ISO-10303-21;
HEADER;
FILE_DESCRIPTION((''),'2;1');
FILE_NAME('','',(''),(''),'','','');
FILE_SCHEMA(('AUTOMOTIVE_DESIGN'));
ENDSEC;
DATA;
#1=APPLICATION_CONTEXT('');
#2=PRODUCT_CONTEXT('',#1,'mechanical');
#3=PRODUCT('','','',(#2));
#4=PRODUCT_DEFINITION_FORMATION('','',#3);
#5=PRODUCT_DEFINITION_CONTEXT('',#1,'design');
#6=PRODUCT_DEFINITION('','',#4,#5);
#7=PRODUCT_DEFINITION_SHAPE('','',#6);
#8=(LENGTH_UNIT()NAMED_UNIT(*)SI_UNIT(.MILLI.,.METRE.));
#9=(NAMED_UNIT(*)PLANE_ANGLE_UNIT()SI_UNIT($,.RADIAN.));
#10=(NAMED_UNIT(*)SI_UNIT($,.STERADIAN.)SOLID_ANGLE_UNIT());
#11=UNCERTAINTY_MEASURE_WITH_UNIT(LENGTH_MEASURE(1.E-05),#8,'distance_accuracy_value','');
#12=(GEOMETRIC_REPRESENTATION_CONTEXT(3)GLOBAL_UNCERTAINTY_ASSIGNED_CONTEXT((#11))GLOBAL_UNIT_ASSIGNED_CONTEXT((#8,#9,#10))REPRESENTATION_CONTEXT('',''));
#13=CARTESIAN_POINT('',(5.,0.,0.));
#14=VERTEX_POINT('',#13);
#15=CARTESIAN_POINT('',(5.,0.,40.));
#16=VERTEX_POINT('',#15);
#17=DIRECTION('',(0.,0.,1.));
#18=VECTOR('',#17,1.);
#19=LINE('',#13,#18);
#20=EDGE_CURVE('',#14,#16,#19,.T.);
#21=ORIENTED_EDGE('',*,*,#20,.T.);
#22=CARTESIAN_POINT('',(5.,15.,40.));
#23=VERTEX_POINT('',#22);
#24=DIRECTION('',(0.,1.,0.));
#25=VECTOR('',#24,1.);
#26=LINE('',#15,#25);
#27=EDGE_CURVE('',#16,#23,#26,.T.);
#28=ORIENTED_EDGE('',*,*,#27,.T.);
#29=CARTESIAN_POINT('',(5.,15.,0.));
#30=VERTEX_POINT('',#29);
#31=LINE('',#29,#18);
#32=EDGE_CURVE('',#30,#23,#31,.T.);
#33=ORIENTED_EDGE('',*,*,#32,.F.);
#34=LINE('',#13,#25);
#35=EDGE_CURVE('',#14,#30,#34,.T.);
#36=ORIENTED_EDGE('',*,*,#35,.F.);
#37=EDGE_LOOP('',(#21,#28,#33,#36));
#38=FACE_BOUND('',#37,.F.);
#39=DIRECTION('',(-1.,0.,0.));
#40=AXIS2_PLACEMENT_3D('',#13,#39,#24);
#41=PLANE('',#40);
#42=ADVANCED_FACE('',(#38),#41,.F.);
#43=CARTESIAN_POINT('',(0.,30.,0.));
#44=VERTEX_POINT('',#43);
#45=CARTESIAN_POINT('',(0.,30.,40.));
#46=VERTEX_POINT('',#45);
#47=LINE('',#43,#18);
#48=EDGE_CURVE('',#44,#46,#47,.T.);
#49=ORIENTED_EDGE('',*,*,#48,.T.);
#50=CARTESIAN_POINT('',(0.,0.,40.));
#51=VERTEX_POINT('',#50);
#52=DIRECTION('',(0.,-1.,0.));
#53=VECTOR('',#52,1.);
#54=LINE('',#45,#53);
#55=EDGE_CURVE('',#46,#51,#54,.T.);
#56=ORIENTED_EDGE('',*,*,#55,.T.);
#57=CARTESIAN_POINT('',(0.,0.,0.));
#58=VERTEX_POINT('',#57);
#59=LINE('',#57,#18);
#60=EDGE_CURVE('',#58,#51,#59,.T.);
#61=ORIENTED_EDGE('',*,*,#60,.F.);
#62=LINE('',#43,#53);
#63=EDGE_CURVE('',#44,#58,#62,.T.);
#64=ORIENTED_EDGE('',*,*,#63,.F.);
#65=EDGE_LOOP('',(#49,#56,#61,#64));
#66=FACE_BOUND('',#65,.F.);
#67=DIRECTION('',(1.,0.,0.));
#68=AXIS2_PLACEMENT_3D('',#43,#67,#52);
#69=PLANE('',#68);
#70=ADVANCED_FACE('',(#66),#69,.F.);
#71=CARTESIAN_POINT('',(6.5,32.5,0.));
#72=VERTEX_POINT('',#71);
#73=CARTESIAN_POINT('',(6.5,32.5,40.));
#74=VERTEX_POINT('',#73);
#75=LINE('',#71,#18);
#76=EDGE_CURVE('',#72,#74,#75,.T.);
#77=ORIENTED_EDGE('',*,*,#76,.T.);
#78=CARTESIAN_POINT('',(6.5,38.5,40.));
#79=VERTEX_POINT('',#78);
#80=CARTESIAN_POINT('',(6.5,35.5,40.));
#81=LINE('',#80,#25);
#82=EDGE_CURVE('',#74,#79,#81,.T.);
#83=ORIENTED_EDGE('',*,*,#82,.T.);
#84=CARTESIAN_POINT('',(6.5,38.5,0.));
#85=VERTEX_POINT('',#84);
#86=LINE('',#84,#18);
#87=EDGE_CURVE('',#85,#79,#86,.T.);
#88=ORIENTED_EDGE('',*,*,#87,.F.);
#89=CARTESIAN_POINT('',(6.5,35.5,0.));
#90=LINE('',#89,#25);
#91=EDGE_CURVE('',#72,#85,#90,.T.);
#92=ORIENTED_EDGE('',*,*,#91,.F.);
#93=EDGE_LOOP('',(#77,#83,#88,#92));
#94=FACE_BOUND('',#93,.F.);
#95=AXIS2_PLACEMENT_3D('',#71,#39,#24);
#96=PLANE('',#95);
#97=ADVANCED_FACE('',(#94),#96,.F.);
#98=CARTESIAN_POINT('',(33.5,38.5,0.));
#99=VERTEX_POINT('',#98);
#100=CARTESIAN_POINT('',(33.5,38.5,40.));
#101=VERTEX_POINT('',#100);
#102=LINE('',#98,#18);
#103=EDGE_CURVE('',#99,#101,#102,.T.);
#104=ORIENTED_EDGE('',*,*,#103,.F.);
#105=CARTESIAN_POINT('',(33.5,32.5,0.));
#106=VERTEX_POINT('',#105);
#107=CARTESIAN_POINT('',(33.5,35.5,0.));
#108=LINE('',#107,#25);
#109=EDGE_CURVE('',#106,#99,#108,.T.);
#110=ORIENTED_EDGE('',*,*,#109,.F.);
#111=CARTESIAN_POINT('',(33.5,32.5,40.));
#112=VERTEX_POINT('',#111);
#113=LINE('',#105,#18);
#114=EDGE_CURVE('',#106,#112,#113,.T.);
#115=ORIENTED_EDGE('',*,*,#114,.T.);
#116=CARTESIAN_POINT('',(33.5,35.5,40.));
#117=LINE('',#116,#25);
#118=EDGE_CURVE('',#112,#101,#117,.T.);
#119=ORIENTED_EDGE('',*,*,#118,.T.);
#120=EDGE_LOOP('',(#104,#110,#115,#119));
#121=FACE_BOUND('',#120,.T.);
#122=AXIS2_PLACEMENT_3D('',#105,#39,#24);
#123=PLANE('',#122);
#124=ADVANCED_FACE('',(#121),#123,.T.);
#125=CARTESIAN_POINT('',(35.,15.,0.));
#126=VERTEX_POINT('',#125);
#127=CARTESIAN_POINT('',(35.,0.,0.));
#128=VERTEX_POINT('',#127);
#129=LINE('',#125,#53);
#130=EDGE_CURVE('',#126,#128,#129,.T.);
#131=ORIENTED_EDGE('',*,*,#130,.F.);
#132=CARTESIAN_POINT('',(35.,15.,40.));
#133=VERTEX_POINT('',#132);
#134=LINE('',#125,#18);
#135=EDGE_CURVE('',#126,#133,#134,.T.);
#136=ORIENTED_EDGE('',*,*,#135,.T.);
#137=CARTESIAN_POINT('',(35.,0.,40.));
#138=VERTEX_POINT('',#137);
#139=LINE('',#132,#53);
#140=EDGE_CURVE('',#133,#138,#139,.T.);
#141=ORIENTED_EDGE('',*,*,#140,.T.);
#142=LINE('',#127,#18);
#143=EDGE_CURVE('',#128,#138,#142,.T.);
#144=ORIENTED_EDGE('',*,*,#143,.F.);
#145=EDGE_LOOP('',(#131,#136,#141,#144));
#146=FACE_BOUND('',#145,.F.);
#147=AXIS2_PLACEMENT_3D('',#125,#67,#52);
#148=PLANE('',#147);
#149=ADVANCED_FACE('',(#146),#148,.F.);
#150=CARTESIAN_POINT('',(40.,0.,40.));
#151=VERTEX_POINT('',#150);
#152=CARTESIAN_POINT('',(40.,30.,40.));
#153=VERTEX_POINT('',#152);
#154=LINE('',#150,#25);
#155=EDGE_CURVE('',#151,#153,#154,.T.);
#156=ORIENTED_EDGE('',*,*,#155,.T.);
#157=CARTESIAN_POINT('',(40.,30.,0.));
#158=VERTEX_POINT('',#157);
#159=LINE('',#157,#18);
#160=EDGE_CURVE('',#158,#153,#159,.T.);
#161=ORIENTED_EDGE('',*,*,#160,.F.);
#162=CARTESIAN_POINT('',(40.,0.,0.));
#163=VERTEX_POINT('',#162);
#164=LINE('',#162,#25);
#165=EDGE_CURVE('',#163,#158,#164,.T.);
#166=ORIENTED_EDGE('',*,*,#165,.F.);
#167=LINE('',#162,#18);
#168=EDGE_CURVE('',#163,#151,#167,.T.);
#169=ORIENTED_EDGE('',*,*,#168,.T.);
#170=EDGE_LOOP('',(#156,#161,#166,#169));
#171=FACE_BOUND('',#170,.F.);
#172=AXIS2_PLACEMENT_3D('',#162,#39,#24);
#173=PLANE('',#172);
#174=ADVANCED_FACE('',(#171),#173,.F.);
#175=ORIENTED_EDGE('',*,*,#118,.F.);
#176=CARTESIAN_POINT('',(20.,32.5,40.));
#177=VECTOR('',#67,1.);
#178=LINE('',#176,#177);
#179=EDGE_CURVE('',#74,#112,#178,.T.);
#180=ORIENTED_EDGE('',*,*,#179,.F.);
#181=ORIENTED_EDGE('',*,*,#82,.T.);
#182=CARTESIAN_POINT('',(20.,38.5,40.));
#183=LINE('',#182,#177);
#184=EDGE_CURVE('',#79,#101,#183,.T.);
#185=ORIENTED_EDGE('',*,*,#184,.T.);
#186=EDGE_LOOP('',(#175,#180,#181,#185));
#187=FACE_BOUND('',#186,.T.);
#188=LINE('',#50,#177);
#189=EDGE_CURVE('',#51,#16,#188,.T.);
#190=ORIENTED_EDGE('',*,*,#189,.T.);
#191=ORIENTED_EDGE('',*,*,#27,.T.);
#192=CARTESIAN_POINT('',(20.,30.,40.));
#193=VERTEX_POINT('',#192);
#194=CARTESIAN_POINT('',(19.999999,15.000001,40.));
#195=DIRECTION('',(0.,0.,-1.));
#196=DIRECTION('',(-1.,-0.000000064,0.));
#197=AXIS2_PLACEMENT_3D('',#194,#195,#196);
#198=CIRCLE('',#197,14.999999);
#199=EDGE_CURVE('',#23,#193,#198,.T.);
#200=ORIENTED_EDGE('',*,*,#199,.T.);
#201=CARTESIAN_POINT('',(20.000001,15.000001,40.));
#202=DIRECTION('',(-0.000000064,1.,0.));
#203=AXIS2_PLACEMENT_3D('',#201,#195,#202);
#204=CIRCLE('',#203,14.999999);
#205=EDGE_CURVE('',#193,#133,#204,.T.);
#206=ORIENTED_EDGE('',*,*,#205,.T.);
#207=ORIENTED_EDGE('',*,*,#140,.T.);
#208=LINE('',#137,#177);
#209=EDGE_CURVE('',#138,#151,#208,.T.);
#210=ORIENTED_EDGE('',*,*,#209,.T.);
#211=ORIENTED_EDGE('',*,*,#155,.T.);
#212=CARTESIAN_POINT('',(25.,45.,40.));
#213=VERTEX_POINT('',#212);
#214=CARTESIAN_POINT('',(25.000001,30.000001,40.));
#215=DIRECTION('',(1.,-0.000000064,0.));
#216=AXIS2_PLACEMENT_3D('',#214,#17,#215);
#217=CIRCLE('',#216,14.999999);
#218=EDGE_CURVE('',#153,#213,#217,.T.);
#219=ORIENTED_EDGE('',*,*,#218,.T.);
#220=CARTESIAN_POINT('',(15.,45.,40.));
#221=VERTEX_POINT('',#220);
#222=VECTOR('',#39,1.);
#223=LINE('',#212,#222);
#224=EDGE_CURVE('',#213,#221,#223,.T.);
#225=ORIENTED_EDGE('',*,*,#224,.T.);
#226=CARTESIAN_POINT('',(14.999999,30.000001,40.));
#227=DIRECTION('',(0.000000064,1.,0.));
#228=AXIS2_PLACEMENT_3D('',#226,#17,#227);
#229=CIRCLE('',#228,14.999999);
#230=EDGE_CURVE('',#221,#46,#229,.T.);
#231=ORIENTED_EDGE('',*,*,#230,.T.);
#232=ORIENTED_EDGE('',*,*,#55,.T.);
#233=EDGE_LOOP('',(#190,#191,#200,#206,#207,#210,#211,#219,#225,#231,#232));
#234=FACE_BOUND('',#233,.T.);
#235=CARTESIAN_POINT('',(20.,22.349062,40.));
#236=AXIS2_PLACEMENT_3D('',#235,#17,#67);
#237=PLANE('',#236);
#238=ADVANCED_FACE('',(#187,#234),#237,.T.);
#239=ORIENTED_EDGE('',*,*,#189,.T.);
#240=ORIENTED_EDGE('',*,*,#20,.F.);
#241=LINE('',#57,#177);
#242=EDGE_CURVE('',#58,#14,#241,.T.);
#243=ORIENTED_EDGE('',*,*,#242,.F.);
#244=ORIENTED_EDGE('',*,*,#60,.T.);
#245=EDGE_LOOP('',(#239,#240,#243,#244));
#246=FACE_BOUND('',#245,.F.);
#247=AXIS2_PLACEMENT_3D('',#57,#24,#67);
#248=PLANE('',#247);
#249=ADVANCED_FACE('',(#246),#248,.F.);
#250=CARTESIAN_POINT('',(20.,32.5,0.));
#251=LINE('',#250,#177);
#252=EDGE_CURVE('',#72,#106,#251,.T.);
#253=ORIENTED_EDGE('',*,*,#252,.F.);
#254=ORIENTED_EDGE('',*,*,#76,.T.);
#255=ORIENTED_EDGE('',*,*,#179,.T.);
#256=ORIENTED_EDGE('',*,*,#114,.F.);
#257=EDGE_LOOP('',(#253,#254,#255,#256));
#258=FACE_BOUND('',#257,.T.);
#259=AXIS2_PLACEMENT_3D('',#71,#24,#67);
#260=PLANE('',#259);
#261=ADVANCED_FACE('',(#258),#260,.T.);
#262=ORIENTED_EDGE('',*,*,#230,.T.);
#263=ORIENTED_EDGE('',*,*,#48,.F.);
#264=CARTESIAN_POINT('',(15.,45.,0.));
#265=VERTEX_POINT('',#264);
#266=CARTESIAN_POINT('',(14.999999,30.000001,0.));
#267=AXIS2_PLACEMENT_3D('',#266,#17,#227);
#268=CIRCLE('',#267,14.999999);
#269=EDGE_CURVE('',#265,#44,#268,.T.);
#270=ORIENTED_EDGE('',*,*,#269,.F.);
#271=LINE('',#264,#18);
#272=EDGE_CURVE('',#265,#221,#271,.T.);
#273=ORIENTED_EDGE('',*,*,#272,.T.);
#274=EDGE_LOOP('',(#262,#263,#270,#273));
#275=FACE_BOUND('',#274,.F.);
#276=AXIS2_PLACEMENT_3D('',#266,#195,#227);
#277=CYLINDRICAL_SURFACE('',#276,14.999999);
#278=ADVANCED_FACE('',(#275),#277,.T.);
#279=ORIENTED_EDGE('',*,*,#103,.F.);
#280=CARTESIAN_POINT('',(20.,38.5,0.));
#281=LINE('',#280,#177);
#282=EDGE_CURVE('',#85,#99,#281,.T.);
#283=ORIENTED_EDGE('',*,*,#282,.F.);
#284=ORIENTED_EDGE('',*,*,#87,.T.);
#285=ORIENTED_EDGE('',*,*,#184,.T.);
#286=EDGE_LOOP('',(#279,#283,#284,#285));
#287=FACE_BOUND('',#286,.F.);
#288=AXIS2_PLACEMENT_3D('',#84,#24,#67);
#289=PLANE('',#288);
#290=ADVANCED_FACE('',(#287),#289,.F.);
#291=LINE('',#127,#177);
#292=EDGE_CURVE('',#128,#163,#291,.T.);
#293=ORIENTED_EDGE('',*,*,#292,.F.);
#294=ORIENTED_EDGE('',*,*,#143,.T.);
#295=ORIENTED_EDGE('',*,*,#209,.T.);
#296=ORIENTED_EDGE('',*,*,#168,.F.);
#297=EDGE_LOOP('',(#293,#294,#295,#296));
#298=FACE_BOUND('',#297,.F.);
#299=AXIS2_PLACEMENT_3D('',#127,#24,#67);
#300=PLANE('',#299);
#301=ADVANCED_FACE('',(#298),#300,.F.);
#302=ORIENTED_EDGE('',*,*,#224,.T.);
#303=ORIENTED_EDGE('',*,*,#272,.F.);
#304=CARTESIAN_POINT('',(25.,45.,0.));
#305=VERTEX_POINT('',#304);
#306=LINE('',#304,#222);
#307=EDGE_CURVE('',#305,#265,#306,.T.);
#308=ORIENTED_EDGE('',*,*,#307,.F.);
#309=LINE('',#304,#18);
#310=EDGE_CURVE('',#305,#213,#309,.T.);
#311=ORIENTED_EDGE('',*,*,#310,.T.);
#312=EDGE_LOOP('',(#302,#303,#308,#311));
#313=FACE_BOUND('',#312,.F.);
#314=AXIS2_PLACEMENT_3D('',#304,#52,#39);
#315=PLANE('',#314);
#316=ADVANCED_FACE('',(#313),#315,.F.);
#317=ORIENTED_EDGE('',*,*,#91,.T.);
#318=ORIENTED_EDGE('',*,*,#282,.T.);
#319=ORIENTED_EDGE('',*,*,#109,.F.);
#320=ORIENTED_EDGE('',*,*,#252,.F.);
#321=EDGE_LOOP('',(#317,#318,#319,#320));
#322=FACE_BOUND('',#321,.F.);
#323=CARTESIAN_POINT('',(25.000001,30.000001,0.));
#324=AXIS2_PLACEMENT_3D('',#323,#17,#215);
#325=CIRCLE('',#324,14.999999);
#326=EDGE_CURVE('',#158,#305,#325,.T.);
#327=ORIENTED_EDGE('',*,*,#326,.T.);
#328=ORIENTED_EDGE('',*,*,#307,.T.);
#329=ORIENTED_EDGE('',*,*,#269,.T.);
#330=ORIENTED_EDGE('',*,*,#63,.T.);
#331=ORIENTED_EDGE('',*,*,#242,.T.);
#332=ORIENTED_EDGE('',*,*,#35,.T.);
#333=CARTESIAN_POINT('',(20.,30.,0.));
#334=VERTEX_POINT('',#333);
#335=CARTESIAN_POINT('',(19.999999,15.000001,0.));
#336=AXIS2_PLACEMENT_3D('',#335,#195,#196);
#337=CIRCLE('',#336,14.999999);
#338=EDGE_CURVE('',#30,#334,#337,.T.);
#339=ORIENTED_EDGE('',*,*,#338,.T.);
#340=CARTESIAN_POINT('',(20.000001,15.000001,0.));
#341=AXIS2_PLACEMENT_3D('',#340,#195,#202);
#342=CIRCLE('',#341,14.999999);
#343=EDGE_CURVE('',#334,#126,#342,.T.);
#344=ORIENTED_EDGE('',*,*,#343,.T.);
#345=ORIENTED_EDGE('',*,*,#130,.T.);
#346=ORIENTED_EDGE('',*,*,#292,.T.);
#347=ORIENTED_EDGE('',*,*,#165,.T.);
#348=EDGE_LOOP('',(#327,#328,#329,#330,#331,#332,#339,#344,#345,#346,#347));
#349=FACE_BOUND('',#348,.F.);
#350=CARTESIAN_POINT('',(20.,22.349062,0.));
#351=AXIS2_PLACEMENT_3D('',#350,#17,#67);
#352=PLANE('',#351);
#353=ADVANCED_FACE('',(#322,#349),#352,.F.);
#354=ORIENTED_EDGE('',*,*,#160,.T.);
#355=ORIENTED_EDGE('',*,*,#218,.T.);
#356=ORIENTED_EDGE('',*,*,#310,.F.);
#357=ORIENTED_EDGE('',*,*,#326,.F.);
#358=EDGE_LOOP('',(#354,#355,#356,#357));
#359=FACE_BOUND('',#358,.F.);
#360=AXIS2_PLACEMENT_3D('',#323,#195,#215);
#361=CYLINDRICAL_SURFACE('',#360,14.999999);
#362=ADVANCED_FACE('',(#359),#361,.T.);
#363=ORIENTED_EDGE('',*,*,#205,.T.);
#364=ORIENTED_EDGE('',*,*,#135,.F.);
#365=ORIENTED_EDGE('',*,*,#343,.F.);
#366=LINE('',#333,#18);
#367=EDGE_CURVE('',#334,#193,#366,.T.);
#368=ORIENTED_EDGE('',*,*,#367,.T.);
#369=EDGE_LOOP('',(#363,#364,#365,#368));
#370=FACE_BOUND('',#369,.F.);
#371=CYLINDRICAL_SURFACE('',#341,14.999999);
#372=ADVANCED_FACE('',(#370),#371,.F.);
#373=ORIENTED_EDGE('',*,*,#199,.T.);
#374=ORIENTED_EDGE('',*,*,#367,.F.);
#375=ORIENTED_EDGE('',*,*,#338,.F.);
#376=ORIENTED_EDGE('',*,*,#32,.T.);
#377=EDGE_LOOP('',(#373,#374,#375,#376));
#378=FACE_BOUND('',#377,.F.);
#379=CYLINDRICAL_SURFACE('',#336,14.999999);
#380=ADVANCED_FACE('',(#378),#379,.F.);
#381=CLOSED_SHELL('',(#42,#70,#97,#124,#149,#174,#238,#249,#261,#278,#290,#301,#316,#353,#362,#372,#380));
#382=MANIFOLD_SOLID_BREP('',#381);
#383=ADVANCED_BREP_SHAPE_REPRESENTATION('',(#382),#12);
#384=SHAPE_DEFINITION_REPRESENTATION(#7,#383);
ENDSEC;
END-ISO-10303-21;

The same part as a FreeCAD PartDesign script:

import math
import FreeCAD as App
import Part
import Sketcher
Q = App.Units.Quantity

doc = App.newDocument("Part")
body = doc.addObject("PartDesign::Body", "Body")

sketch1 = body.newObject("Sketcher::SketchObject", "Sketch")
sketch1.AttachmentSupport = (doc.getObject("XY_Plane"), [""])
sketch1.MapMode = "FlatFace"
sketch1.addGeometry([
    Part.LineSegment(App.Vector(0, 30, 0), App.Vector(0, 0, 0)),
    Part.LineSegment(App.Vector(0, 0, 0), App.Vector(5, 0, 0)),
    Part.LineSegment(App.Vector(5, 0, 0), App.Vector(5, 15, 0)),
    Part.ArcOfCircle(Part.Circle(App.Vector(20, 15, 0), App.Vector(0, 0, 1), 15), math.radians(90), math.radians(180)),
    Part.ArcOfCircle(Part.Circle(App.Vector(20, 15, 0), App.Vector(0, 0, 1), 15), math.radians(0), math.radians(90)),
    Part.LineSegment(App.Vector(35, 15, 0), App.Vector(35, 0, 0)),
    Part.LineSegment(App.Vector(35, 0, 0), App.Vector(40, 0, 0)),
    Part.LineSegment(App.Vector(40, 0, 0), App.Vector(40, 30, 0)),
    Part.ArcOfCircle(Part.Circle(App.Vector(25, 30, 0), App.Vector(0, 0, 1), 15), math.radians(0), math.radians(90)),
    Part.LineSegment(App.Vector(25, 45, 0), App.Vector(15, 45, 0)),
    Part.ArcOfCircle(Part.Circle(App.Vector(15, 30, 0), App.Vector(0, 0, 1), 15), math.radians(90), math.radians(180)),
    Part.LineSegment(App.Vector(34, 32, 0), App.Vector(6, 32, 0)),
    Part.LineSegment(App.Vector(6, 32, 0), App.Vector(6, 38, 0)),
    Part.LineSegment(App.Vector(6, 38, 0), App.Vector(34, 38, 0)),
    Part.LineSegment(App.Vector(34, 38, 0), App.Vector(34, 32, 0)),
], False)
sketch1.addConstraint([
    Sketcher.Constraint("Coincident", 0, 2, 1, 1),
    Sketcher.Constraint("Coincident", 1, 2, 2, 1),
    Sketcher.Constraint("Tangent", 2, 2, 3, 2),
    Sketcher.Constraint("Tangent", 3, 1, 4, 2),
    Sketcher.Constraint("Tangent", 4, 1, 5, 1),
    Sketcher.Constraint("Coincident", 5, 2, 6, 1),
    Sketcher.Constraint("Coincident", 6, 2, 7, 1),
    Sketcher.Constraint("Tangent", 7, 2, 8, 1),
    Sketcher.Constraint("Tangent", 8, 2, 9, 1),
    Sketcher.Constraint("Tangent", 9, 2, 10, 1),
    Sketcher.Constraint("Tangent", 10, 2, 0, 1),
    Sketcher.Constraint("Coincident", 11, 2, 12, 1),
    Sketcher.Constraint("Coincident", 12, 2, 13, 1),
    Sketcher.Constraint("Coincident", 13, 2, 14, 1),
    Sketcher.Constraint("Coincident", 14, 2, 11, 1),
    Sketcher.Constraint("Vertical", 0),
    Sketcher.Constraint("Horizontal", 1),
    Sketcher.Constraint("Vertical", 2),
    Sketcher.Constraint("Vertical", 5),
    Sketcher.Constraint("Horizontal", 6),
    Sketcher.Constraint("Vertical", 7),
    Sketcher.Constraint("Horizontal", 9),
    Sketcher.Constraint("Horizontal", 11),
    Sketcher.Constraint("Vertical", 12),
    Sketcher.Constraint("Horizontal", 13),
    Sketcher.Constraint("Vertical", 14),
    Sketcher.Constraint("Coincident", 0, 2, -1, 1),
    Sketcher.Constraint("Equal", 3, 4),
    Sketcher.Constraint("Equal", 4, 8),
    Sketcher.Constraint("Equal", 8, 10),
    Sketcher.Constraint("PointOnObject", 5, 2, -1),
    Sketcher.Constraint("Horizontal", 10, 3, 3, 1),
    Sketcher.Constraint("Vertical", 4, 3, 3, 1),
    Sketcher.Constraint("Equal", 1, 6),
    Sketcher.Constraint("Radius", 3, Q("14.999999 mm")),
    Sketcher.Constraint("DistanceX", 1, 1, 1, 2, Q("5 mm")),
    Sketcher.Constraint("DistanceX", 11, 2, 11, 1, Q("27 mm")),
    Sketcher.Constraint("DistanceY", 0, 2, 0, 1, Q("30 mm")),
    Sketcher.Constraint("DistanceY", 12, 1, 12, 2, Q("6 mm")),
    Sketcher.Constraint("DistanceX", -1, 1, 11, 2, Q("6.5 mm")),
    Sketcher.Constraint("DistanceY", -1, 1, 11, 2, Q("32.5 mm")),
])
pad1 = body.newObject("PartDesign::Pad", "Pad")
pad1.Profile = sketch1
pad1.Length = 40

doc.recompute()
